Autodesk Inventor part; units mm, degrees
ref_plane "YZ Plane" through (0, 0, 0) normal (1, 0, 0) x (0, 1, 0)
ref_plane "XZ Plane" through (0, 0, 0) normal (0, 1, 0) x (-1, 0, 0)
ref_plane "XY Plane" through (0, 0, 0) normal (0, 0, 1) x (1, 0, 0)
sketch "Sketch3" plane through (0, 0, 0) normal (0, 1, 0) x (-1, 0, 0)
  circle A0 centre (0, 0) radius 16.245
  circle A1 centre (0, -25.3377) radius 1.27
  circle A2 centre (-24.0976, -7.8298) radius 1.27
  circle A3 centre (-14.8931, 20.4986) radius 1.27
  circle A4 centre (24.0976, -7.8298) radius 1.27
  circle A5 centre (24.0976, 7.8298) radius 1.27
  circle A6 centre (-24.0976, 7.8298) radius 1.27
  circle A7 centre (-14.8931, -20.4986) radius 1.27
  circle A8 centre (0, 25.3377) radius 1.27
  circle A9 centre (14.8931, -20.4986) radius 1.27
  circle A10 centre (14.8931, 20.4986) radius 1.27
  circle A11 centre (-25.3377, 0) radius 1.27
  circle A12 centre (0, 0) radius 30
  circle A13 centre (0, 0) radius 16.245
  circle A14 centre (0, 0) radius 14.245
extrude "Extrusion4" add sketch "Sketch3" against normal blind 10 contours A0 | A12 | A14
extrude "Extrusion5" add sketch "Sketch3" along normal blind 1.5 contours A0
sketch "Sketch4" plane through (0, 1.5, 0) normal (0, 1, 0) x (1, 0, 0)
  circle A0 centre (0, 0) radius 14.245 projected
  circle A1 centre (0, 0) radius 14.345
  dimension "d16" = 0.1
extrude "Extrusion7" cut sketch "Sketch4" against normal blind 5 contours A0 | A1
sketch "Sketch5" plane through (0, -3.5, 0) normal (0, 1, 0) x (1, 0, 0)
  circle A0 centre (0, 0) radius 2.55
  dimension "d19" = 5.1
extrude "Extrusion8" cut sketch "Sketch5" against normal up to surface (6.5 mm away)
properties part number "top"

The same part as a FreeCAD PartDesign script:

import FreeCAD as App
import Part
import Sketcher
Q = App.Units.Quantity

doc = App.newDocument("Part")
params = doc.addObject("Spreadsheet::Sheet", "Params")
for row, (alias, value) in enumerate([
    ("sketch1_diameter", "60 mm"),
    ("sketch1_diameter2", "2.54 mm"),
    ("pad1_length", "10 mm"),
    ("sketch2_diameter", "32.49 mm"),
    ("sketch2_diameter2", "28.49 mm"),
    ("pad2_length", "1.5 mm"),
    ("sketch3_diameter", "28.69 mm"),
    ("pocket1_length", "5 mm"),
    ("sketch4_diameter", "5.1 mm"),
    ("pocket2_length", "6.5 mm"),
], start=1):
    params.set(f"A{row}", alias)
    params.set(f"B{row}", "=" + value)
    params.setAlias(f"B{row}", alias)

body = doc.addObject("PartDesign::Body", "Body")

# Sketch on XZ plane
sketch1 = doc.addObject("Sketcher::SketchObject", "Sketch")
body.addObject(sketch1)
sketch1.AttachmentSupport = (doc.XZ_Plane, [""])
sketch1.MapMode = "FlatFace"
sketch1.addGeometry(Part.Circle(App.Vector(0, 0, 0), App.Vector(0, 0, 1), 30), False)
sketch1.addGeometry(Part.Circle(App.Vector(14.8931, -20.4986, 0), App.Vector(0, 0, 1), 1.27), False)
sketch1.addGeometry(Part.Circle(App.Vector(24.0976, -7.8298, 0), App.Vector(0, 0, 1), 1.27), False)
sketch1.addGeometry(Part.Circle(App.Vector(0, -25.3377, 0), App.Vector(0, 0, 1), 1.27), False)
sketch1.addGeometry(Part.Circle(App.Vector(-14.8931, -20.4986, 0), App.Vector(0, 0, 1), 1.27), False)
sketch1.addGeometry(Part.Circle(App.Vector(-24.0976, -7.8298, 0), App.Vector(0, 0, 1), 1.27), False)
sketch1.addGeometry(Part.Circle(App.Vector(25.3377, 0, 0), App.Vector(0, 0, 1), 1.27), False)
sketch1.addGeometry(Part.Circle(App.Vector(24.0976, 7.8298, 0), App.Vector(0, 0, 1), 1.27), False)
sketch1.addGeometry(Part.Circle(App.Vector(14.8931, 20.4986, 0), App.Vector(0, 0, 1), 1.27), False)
sketch1.addGeometry(Part.Circle(App.Vector(0, 25.3377, 0), App.Vector(0, 0, 1), 1.27), False)
sketch1.addGeometry(Part.Circle(App.Vector(-24.0976, 7.8298, 0), App.Vector(0, 0, 1), 1.27), False)
sketch1.addGeometry(Part.Circle(App.Vector(-14.8931, 20.4986, 0), App.Vector(0, 0, 1), 1.27), False)
sketch1.addConstraint(Sketcher.Constraint("Coincident", 0, 3, -1, 1))
sketch1.addConstraint(Sketcher.Constraint("Equal", 1, 2))
sketch1.addConstraint(Sketcher.Constraint("Equal", 2, 3))
sketch1.addConstraint(Sketcher.Constraint("Equal", 3, 4))
sketch1.addConstraint(Sketcher.Constraint("Equal", 4, 5))
sketch1.addConstraint(Sketcher.Constraint("Equal", 5, 6))
sketch1.addConstraint(Sketcher.Constraint("Equal", 6, 7))
sketch1.addConstraint(Sketcher.Constraint("Equal", 7, 8))
sketch1.addConstraint(Sketcher.Constraint("Equal", 8, 9))
sketch1.addConstraint(Sketcher.Constraint("Equal", 9, 10))
sketch1.addConstraint(Sketcher.Constraint("Equal", 10, 11))
sketch1.addConstraint(Sketcher.Constraint("Symmetric", 5, 3, 7, 3, -1, 1))
sketch1.addConstraint(Sketcher.Constraint("Symmetric", 4, 3, 8, 3, -1, 1))
sketch1.addConstraint(Sketcher.Constraint("Symmetric", 3, 3, 9, 3, -1, 1))
sketch1.addConstraint(Sketcher.Constraint("Symmetric", 2, 3, 10, 3, -1, 1))
sketch1.addConstraint(Sketcher.Constraint("Symmetric", 1, 3, 11, 3, -1, 1))
sketch1.addConstraint(Sketcher.Constraint("Symmetric", 1, 3, 4, 3, -2))
sketch1.addConstraint(Sketcher.Constraint("Symmetric", 2, 3, 5, 3, -2))
sketch1.addConstraint(Sketcher.Constraint("PointOnObject", 3, 3, -2))
sketch1.addConstraint(Sketcher.Constraint("PointOnObject", 6, 3, -1))
sketch1.addConstraint(Sketcher.Constraint("Diameter", 0, Q("60 mm")))
sketch1.addConstraint(Sketcher.Constraint("Diameter", 1, Q("2.54 mm")))
sketch1.addConstraint(Sketcher.Constraint("DistanceX", 2, 3, 6, 3, Q("1.24 mm")))
sketch1.addConstraint(Sketcher.Constraint("DistanceX", -1, 1, 1, 3, Q("14.893 mm")))
sketch1.addConstraint(Sketcher.Constraint("DistanceY", 3, 3, 1, 3, Q("4.839 mm")))
sketch1.addConstraint(Sketcher.Constraint("DistanceY", 3, 3, 2, 3, Q("17.508 mm")))
sketch1.addConstraint(Sketcher.Constraint("DistanceY", 1, 3, -1, 1, Q("20.4986 mm")))
sketch1.addConstraint(Sketcher.Constraint("DistanceX", -1, 1, 2, 3, Q("24.0976 mm")))
sketch1.setExpression("Constraints[20]", "Params.sketch1_diameter")
sketch1.setExpression("Constraints[21]", "Params.sketch1_diameter2")
pad1 = doc.addObject("PartDesign::Pad", "Pad")
body.addObject(pad1)
pad1.Profile = sketch1
pad1.setExpression("Length", "Params.pad1_length")

# Sketch on XZ plane
sketch2 = doc.addObject("Sketcher::SketchObject", "Sketch001")
body.addObject(sketch2)
sketch2.AttachmentSupport = (doc.XZ_Plane, [""])
sketch2.MapMode = "FlatFace"
sketch2.addGeometry(Part.Circle(App.Vector(0, 0, 0), App.Vector(0, 0, 1), 16.245), False)
sketch2.addGeometry(Part.Circle(App.Vector(0, 0, 0), App.Vector(0, 0, 1), 14.245), False)
sketch2.addConstraint(Sketcher.Constraint("Coincident", 0, 3, -1, 1))
sketch2.addConstraint(Sketcher.Constraint("Coincident", 1, 3, -1, 1))
sketch2.addConstraint(Sketcher.Constraint("Diameter", 0, Q("32.49 mm")))
sketch2.addConstraint(Sketcher.Constraint("Diameter", 1, Q("28.49 mm")))
sketch2.setExpression("Constraints[2]", "Params.sketch2_diameter")
sketch2.setExpression("Constraints[3]", "Params.sketch2_diameter2")
pad2 = doc.addObject("PartDesign::Pad", "Pad001")
body.addObject(pad2)
pad2.Profile = sketch2
pad2.setExpression("Length", "Params.pad2_length")
pad2.Reversed = True

# Sketch on XZ plane
sketch3 = doc.addObject("Sketcher::SketchObject", "Sketch002")
body.addObject(sketch3)
sketch3.AttachmentSupport = (doc.XZ_Plane, [""])
sketch3.MapMode = "FlatFace"
sketch3.AttachmentOffset = App.Placement(App.Vector(0, 0, -1.5), App.Rotation())
sketch3.addGeometry(Part.Circle(App.Vector(0, 0, 0), App.Vector(0, 0, 1), 14.345), False)
sketch3.addConstraint(Sketcher.Constraint("Coincident", 0, 3, -1, 1))
sketch3.addConstraint(Sketcher.Constraint("Diameter", 0, Q("28.69 mm")))
sketch3.setExpression("Constraints[1]", "Params.sketch3_diameter")
pocket1 = doc.addObject("PartDesign::Pocket", "Pocket")
body.addObject(pocket1)
pocket1.Profile = sketch3
pocket1.setExpression("Length", "Params.pocket1_length")
pocket1.Reversed = True

# Sketch on XZ plane
sketch4 = doc.addObject("Sketcher::SketchObject", "Sketch003")
body.addObject(sketch4)
sketch4.AttachmentSupport = (doc.XZ_Plane, [""])
sketch4.MapMode = "FlatFace"
sketch4.AttachmentOffset = App.Placement(App.Vector(0, 0, 3.5), App.Rotation())
sketch4.addGeometry(Part.Circle(App.Vector(0, 0, 0), App.Vector(0, 0, 1), 2.55), False)
sketch4.addConstraint(Sketcher.Constraint("Coincident", 0, 3, -1, 1))
sketch4.addConstraint(Sketcher.Constraint("Diameter", 0, Q("5.1 mm")))
sketch4.setExpression("Constraints[1]", "Params.sketch4_diameter")
pocket2 = doc.addObject("PartDesign::Pocket", "Pocket001")
body.addObject(pocket2)
pocket2.Profile = sketch4
pocket2.setExpression("Length", "Params.pocket2_length")
pocket2.Reversed = True

doc.recompute()
